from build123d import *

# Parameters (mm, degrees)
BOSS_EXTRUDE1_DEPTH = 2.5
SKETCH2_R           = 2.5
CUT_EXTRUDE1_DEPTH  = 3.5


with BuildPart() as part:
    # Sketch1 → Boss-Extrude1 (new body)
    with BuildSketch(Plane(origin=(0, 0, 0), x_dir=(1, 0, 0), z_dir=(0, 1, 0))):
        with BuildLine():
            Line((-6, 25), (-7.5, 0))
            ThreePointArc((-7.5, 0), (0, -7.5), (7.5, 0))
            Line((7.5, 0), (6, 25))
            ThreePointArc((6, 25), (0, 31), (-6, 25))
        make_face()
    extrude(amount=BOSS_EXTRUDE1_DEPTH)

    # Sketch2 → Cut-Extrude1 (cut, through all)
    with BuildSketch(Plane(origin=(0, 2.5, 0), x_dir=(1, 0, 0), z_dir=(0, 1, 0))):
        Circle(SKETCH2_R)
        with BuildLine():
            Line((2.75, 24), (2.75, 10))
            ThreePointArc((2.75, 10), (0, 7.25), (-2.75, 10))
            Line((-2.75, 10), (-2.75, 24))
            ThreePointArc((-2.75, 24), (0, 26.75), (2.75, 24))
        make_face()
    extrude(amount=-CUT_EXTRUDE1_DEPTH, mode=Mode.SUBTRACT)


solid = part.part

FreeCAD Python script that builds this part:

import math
import FreeCAD as App
import Part
import Sketcher
Q = App.Units.Quantity

doc = App.newDocument("Part")
body = doc.addObject("PartDesign::Body", "Body")

sketch1 = body.newObject("Sketcher::SketchObject", "Sketch")
sketch1.AttachmentSupport = (doc.getObject("XZ_Plane"), [""])
sketch1.MapMode = "FlatFace"
sketch1.addGeometry([
    Part.LineSegment(App.Vector(-6, -25, 0), App.Vector(-8, 0, 0)),
    Part.ArcOfCircle(Part.Circle(App.Vector(0, 0, 0), App.Vector(0, 0, 1), 8), math.radians(0), math.radians(180)),
    Part.LineSegment(App.Vector(8, 0, 0), App.Vector(6, -25, 0)),
    Part.ArcOfCircle(Part.Circle(App.Vector(0, -25, 0), App.Vector(0, 0, 1), 6), math.radians(180), math.radians(360)),
], False)
sketch1.addConstraint([
    Sketcher.Constraint("Coincident", 0, 2, 1, 2),
    Sketcher.Constraint("Coincident", 1, 1, 2, 1),
    Sketcher.Constraint("Coincident", 2, 2, 3, 2),
    Sketcher.Constraint("Coincident", 3, 1, 0, 1),
    Sketcher.Constraint("Coincident", 1, 3, -1, 1),
    Sketcher.Constraint("Symmetric", 2, 2, 3, 1, -2),
    Sketcher.Constraint("PointOnObject", 0, 2, -1),
    Sketcher.Constraint("PointOnObject", 1, 1, -1),
    Sketcher.Constraint("Horizontal", 3, 3, 2, 2),
    Sketcher.Constraint("Radius", 3, Q("6 mm")),
    Sketcher.Constraint("Radius", 1, Q("7.5 mm")),
    Sketcher.Constraint("DistanceY", 3, 3, -1, 1, Q("25 mm")),
])
pad1 = body.newObject("PartDesign::Pad", "Pad")
pad1.Profile = sketch1
pad1.Length = 2.5
pad1.Reversed = True

sketch2 = body.newObject("Sketcher::SketchObject", "Sketch001")
sketch2.AttachmentSupport = (doc.getObject("XZ_Plane"), [""])
sketch2.MapMode = "FlatFace"
sketch2.AttachmentOffset = App.Placement(App.Vector(0, 0, -2.5), App.Rotation())
sketch2.addGeometry([
    Part.Circle(App.Vector(0, 0, 0), App.Vector(0, 0, 1), 2.5),
    Part.LineSegment(App.Vector(2.8, -10, 0), App.Vector(2.8, -24, 0)),
    Part.ArcOfCircle(Part.Circle(App.Vector(0, -24, 0), App.Vector(0, 0, 1), 2.8), math.radians(180), math.radians(360)),
    Part.LineSegment(App.Vector(-2.8, -24, 0), App.Vector(-2.8, -10, 0)),
    Part.ArcOfCircle(Part.Circle(App.Vector(0, -10, 0), App.Vector(0, 0, 1), 2.8), math.radians(0), math.radians(180)),
], False)
sketch2.addConstraint([
    Sketcher.Constraint("Tangent", 1, 2, 2, 2),
    Sketcher.Constraint("Tangent", 2, 1, 3, 1),
    Sketcher.Constraint("Tangent", 3, 2, 4, 2),
    Sketcher.Constraint("Tangent", 4, 1, 1, 1),
    Sketcher.Constraint("Vertical", 1),
    Sketcher.Constraint("Vertical", 3),
    Sketcher.Constraint("Coincident", 0, 3, -1, 1),
    Sketcher.Constraint("PointOnObject", 2, 3, -2),
    Sketcher.Constraint("Diameter", 0, Q("5 mm")),
    Sketcher.Constraint("DistanceY", 1, 2, 1, 1, Q("14 mm")),
    Sketcher.Constraint("Radius", 2, Q("2.75 mm")),
    Sketcher.Constraint("DistanceY", 2, 3, -1, 1, Q("24 mm")),
])
pocket1 = body.newObject("PartDesign::Pocket", "Pocket")
pocket1.Profile = sketch2
pocket1.Type = "ThroughAll"
pocket1.Reversed = True

doc.recompute()
